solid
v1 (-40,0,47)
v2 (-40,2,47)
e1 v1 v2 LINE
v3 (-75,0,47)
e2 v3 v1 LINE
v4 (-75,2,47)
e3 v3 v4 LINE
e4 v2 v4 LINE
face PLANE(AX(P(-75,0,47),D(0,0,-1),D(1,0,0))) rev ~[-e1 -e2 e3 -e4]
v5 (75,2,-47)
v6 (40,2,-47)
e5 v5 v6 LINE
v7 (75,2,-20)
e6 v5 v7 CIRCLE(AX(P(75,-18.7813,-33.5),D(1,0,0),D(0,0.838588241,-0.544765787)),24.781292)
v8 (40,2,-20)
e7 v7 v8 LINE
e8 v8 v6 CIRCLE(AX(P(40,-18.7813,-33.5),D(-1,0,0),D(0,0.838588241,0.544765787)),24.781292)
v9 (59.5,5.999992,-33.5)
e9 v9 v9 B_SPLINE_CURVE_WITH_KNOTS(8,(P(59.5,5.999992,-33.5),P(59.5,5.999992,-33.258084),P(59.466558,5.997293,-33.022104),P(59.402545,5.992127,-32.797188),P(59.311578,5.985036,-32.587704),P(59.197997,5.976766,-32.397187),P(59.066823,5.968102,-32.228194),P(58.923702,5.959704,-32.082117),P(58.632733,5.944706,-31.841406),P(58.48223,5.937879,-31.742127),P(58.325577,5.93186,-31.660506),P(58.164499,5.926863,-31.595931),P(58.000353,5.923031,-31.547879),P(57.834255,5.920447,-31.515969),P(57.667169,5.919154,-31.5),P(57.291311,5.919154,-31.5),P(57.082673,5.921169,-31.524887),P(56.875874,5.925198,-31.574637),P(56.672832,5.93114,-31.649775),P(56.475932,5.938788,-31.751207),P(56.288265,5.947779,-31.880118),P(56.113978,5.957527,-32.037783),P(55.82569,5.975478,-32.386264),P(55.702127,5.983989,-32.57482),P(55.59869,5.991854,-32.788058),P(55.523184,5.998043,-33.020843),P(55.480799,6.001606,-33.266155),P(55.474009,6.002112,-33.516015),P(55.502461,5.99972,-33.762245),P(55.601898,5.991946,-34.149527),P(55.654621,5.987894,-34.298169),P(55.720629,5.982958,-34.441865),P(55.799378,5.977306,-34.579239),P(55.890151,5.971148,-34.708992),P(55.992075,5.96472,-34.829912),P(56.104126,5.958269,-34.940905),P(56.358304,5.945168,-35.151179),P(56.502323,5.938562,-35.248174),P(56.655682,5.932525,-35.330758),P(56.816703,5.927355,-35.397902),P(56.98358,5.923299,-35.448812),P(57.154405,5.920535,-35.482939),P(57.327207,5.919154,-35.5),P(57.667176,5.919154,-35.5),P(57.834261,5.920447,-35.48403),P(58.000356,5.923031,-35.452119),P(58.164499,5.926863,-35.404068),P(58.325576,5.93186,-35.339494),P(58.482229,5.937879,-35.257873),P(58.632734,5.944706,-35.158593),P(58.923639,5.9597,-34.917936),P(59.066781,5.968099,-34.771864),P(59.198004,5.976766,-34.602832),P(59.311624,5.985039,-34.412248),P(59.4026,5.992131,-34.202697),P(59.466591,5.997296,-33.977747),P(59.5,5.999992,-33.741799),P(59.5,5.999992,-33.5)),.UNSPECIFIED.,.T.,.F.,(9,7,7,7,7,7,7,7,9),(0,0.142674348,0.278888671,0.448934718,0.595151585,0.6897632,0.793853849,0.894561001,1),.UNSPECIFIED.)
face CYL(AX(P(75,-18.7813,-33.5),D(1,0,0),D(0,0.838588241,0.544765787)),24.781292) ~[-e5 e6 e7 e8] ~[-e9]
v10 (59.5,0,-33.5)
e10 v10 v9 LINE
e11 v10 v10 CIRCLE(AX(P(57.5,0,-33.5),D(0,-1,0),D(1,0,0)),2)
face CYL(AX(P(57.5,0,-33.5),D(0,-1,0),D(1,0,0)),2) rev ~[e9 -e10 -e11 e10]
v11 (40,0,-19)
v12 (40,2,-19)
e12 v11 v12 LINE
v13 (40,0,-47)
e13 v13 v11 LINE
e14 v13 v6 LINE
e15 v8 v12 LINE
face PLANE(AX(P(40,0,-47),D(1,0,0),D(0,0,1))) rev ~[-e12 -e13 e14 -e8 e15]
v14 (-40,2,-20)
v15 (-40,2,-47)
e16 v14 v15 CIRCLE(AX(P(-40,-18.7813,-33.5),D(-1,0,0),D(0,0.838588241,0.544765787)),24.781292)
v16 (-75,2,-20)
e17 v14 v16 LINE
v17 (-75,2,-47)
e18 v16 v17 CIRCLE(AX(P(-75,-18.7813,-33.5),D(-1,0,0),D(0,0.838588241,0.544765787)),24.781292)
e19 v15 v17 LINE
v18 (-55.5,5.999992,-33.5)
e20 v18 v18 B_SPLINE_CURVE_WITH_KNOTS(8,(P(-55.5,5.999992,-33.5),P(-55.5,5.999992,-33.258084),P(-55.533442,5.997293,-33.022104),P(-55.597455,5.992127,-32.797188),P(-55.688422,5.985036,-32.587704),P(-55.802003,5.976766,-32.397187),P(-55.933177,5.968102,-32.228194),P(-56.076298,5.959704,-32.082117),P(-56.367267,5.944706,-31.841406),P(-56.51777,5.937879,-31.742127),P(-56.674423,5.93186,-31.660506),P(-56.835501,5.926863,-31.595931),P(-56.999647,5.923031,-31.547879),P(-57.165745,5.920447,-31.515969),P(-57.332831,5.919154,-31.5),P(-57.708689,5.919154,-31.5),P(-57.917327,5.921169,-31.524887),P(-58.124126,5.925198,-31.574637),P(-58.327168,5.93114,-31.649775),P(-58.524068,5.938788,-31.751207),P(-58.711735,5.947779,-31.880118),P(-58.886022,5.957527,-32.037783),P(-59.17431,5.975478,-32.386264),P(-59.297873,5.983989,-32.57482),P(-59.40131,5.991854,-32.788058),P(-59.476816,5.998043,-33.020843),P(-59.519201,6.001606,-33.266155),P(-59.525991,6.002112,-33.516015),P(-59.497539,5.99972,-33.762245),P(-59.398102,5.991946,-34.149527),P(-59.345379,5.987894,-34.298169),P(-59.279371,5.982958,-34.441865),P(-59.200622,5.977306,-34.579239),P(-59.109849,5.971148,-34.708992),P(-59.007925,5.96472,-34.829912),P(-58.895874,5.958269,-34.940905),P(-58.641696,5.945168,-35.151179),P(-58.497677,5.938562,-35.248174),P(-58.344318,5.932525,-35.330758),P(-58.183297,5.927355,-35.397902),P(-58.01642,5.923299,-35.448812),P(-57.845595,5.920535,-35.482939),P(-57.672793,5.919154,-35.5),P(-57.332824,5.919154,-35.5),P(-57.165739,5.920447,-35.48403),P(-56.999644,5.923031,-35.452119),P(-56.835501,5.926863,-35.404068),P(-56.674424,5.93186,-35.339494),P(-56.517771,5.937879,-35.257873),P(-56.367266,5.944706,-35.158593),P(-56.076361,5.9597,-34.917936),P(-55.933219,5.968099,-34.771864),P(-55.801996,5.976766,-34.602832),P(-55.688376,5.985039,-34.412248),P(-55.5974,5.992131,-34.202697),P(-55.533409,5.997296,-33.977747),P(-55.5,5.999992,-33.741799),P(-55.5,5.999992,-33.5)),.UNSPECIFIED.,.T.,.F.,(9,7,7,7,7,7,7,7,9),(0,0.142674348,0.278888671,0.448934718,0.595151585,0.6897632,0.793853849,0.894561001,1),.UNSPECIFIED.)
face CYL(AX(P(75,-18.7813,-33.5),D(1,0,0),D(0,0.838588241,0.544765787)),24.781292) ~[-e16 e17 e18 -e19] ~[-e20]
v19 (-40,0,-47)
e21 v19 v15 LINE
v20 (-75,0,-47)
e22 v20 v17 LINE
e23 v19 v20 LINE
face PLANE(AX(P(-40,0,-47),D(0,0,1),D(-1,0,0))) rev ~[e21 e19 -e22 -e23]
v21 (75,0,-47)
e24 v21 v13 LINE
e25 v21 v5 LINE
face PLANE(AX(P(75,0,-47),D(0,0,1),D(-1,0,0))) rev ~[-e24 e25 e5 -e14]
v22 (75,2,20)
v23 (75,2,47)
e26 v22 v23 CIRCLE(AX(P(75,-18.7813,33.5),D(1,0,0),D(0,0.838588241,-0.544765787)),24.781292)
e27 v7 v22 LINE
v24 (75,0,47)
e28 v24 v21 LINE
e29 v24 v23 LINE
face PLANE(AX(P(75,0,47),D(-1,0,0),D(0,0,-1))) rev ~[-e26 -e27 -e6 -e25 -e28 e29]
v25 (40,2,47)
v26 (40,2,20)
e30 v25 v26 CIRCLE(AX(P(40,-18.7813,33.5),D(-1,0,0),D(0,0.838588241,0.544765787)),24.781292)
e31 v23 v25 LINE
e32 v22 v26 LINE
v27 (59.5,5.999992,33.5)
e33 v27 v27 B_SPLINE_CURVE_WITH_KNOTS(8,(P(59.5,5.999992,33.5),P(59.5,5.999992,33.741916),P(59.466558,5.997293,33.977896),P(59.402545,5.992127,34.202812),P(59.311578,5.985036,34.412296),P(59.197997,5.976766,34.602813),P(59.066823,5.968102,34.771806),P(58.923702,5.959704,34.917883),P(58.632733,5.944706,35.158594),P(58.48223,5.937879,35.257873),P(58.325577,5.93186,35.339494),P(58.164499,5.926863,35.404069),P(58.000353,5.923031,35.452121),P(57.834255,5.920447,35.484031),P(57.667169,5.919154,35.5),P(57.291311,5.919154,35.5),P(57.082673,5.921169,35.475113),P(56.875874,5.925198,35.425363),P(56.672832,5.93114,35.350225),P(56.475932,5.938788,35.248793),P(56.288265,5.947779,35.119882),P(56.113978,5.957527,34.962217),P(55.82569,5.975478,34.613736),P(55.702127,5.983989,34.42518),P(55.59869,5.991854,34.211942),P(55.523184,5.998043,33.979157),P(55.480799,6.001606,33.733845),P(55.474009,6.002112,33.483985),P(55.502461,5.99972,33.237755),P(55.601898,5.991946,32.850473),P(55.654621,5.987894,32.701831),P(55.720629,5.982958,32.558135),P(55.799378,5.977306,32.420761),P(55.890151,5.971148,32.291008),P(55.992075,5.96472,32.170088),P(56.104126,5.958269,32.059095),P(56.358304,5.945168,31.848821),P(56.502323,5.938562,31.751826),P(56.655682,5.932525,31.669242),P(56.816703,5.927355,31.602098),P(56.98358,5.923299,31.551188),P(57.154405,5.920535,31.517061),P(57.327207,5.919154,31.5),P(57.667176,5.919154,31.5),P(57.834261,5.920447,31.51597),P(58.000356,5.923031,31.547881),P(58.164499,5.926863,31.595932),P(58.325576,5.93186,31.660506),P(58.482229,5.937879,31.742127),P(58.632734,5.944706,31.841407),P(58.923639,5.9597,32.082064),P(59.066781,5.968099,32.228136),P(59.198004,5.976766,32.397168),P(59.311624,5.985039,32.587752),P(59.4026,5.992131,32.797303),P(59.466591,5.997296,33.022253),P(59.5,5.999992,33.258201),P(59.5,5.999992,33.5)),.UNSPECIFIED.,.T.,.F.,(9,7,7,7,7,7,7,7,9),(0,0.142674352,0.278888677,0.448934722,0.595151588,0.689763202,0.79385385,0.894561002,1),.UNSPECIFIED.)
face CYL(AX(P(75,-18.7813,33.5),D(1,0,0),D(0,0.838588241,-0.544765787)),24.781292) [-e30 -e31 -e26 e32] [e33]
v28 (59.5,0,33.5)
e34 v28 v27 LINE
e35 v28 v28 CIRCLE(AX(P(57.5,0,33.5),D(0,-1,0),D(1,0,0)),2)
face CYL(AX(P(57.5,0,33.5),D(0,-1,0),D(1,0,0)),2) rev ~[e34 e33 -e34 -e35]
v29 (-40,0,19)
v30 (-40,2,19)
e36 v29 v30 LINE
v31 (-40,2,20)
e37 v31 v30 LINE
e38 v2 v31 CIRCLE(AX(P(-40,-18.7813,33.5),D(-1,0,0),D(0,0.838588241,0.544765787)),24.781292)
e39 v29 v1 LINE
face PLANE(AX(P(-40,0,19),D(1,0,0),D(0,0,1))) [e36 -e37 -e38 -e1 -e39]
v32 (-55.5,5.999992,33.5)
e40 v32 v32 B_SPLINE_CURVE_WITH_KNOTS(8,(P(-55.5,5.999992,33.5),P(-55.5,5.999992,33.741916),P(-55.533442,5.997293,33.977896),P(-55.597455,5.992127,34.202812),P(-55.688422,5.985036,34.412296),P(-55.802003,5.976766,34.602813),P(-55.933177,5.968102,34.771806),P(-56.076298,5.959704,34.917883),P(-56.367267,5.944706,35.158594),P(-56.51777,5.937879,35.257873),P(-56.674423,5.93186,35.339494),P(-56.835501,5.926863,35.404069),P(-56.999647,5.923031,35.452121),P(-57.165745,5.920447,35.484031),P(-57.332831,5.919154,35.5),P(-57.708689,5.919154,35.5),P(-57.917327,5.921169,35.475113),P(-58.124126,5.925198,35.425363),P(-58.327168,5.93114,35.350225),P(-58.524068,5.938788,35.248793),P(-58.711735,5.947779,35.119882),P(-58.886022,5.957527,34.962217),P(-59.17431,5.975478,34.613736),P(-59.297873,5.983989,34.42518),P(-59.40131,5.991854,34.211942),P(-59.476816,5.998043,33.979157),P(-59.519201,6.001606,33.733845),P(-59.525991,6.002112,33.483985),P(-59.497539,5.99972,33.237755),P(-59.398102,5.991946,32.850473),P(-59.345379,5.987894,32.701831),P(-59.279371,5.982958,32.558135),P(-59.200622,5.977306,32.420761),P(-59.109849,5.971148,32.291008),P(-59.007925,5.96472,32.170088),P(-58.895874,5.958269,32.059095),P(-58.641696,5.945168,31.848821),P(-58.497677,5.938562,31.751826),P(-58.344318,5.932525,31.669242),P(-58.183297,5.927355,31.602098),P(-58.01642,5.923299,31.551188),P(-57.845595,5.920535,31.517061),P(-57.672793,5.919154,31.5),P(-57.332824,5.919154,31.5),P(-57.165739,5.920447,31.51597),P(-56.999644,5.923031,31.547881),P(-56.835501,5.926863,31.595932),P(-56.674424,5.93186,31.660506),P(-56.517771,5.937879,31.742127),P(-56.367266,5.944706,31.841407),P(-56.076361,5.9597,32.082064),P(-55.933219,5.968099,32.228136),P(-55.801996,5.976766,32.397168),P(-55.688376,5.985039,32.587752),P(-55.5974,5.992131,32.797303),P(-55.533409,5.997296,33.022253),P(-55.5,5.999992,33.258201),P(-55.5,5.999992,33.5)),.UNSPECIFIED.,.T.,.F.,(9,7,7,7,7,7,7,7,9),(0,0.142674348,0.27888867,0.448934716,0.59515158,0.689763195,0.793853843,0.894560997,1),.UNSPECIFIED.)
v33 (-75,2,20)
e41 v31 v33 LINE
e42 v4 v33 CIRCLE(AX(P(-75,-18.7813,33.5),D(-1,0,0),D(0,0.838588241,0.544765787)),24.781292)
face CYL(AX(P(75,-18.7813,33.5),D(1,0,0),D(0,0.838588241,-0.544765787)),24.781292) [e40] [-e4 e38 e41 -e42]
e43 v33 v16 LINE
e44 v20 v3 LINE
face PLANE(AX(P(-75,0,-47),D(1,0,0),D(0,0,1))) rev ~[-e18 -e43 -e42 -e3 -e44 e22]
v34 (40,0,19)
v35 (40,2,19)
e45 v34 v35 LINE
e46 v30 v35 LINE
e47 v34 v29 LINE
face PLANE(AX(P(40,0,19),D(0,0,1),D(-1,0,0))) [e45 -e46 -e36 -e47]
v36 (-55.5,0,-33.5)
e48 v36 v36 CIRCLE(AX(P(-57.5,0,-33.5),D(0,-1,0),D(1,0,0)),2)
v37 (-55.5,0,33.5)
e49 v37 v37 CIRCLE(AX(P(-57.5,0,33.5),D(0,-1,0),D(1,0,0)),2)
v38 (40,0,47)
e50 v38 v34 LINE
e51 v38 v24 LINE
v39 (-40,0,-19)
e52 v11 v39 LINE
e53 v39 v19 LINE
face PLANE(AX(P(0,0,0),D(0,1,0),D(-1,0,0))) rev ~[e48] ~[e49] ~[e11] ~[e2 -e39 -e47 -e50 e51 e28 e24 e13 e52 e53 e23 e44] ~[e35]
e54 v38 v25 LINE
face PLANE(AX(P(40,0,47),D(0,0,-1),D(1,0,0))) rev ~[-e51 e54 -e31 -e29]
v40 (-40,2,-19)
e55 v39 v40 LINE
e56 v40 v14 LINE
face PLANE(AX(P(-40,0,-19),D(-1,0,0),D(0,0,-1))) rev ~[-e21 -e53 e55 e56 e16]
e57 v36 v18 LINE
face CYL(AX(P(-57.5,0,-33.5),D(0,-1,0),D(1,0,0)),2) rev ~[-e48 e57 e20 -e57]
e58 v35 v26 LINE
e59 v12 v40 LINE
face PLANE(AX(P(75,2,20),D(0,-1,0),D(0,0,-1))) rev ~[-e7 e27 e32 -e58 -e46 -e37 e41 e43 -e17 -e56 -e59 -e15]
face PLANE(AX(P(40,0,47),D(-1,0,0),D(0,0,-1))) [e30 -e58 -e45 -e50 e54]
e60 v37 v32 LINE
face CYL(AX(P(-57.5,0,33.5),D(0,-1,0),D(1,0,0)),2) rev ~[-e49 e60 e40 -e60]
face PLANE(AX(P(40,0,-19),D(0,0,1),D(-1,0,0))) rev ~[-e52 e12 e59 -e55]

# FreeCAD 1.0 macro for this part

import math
import FreeCAD as App
import Part
import Sketcher
Q = App.Units.Quantity

doc = App.newDocument("Part")
body = doc.addObject("PartDesign::Body", "Body")

# Sketch on XZ plane
sketch1 = body.newObject("Sketcher::SketchObject", "Sketch")
sketch1.AttachmentSupport = (doc.getObject("XZ_Plane"), [""])
sketch1.MapMode = "FlatFace"
sketch1.addGeometry([
    Part.LineSegment(App.Vector(-40, -47, 0), App.Vector(-75, -47, 0)),  # 0
    Part.LineSegment(App.Vector(-75, -47, 0), App.Vector(-75, 47, 0)),  # 1
    Part.LineSegment(App.Vector(-75, 47, 0), App.Vector(-40, 47, 0)),  # 2
    Part.LineSegment(App.Vector(-40, 47, 0), App.Vector(-40, 19, 0)),  # 3
    Part.LineSegment(App.Vector(-40, 19, 0), App.Vector(40, 19, 0)),  # 4
    Part.LineSegment(App.Vector(40, 19, 0), App.Vector(40, 47, 0)),  # 5
    Part.LineSegment(App.Vector(40, 47, 0), App.Vector(75, 47, 0)),  # 6
    Part.LineSegment(App.Vector(75, 47, 0), App.Vector(75, -47, 0)),  # 7
    Part.LineSegment(App.Vector(75, -47, 0), App.Vector(40, -47, 0)),  # 8
    Part.LineSegment(App.Vector(40, -47, 0), App.Vector(40, -19, 0)),  # 9
    Part.LineSegment(App.Vector(40, -19, 0), App.Vector(-40, -19, 0)),  # 10
    Part.LineSegment(App.Vector(-40, -19, 0), App.Vector(-40, -47, 0)),  # 11
], False)
sketch1.addConstraint([
    Sketcher.Constraint("Coincident", 0, 2, 1, 1),
    Sketcher.Constraint("Coincident", 1, 2, 2, 1),
    Sketcher.Constraint("Coincident", 2, 2, 3, 1),
    Sketcher.Constraint("Coincident", 3, 2, 4, 1),
    Sketcher.Constraint("Coincident", 4, 2, 5, 1),
    Sketcher.Constraint("Coincident", 5, 2, 6, 1),
    Sketcher.Constraint("Coincident", 6, 2, 7, 1),
    Sketcher.Constraint("Coincident", 7, 2, 8, 1),
    Sketcher.Constraint("Coincident", 8, 2, 9, 1),
    Sketcher.Constraint("Coincident", 9, 2, 10, 1),
    Sketcher.Constraint("Coincident", 10, 2, 11, 1),
    Sketcher.Constraint("Coincident", 11, 2, 0, 1),
    Sketcher.Constraint("Horizontal", 0),
    Sketcher.Constraint("Vertical", 1),
    Sketcher.Constraint("Horizontal", 2),
    Sketcher.Constraint("Vertical", 3),
    Sketcher.Constraint("Horizontal", 4),
    Sketcher.Constraint("Vertical", 5),
    Sketcher.Constraint("Horizontal", 6),
    Sketcher.Constraint("Vertical", 7),
    Sketcher.Constraint("Horizontal", 8),
    Sketcher.Constraint("Vertical", 9),
    Sketcher.Constraint("Horizontal", 10),
    Sketcher.Constraint("Vertical", 11),
    Sketcher.Constraint("Symmetric", 0, 2, 6, 2, -1, 1),
    Sketcher.Constraint("Symmetric", 2, 2, 8, 2, -1, 1),
    Sketcher.Constraint("Symmetric", 4, 2, 10, 2, -1, 1),
    Sketcher.Constraint("Symmetric", 2, 2, 5, 2, -2),
    Sketcher.Constraint("DistanceX", 0, 2, 0, 1, Q("35 mm")),
    Sketcher.Constraint("DistanceX", 4, 1, 4, 2, Q("80 mm")),
    Sketcher.Constraint("DistanceY", 1, 1, 1, 2, Q("94 mm")),
    Sketcher.Constraint("DistanceY", 3, 2, 3, 1, Q("28 mm")),
])
pad1 = body.newObject("PartDesign::Pad", "Pad")
pad1.Profile = sketch1
pad1.Length = 6
pad1.Reversed = True

# Sketch on XZ plane
sketch2 = body.newObject("Sketcher::SketchObject", "Sketch001")
sketch2.AttachmentSupport = (doc.getObject("XZ_Plane"), [""])
sketch2.MapMode = "FlatFace"
sketch2.AttachmentOffset = App.Placement(App.Vector(0, 0, -6), App.Rotation())
sketch2.addGeometry([
    Part.LineSegment(App.Vector(75, -19, 0), App.Vector(-75, -19, 0)),
    Part.LineSegment(App.Vector(-75, -19, 0), App.Vector(-75, 19, 0)),
    Part.LineSegment(App.Vector(-75, 19, 0), App.Vector(75, 19, 0)),
    Part.LineSegment(App.Vector(75, 19, 0), App.Vector(75, -19, 0)),
], False)
sketch2.addConstraint([
    Sketcher.Constraint("Coincident", 0, 2, 1, 1),
    Sketcher.Constraint("Coincident", 1, 2, 2, 1),
    Sketcher.Constraint("Coincident", 2, 2, 3, 1),
    Sketcher.Constraint("Coincident", 3, 2, 0, 1),
    Sketcher.Constraint("Horizontal", 0),
    Sketcher.Constraint("Vertical", 1),
    Sketcher.Constraint("Horizontal", 2),
    Sketcher.Constraint("Vertical", 3),
    Sketcher.Constraint("Symmetric", 0, 2, 2, 2, -1, 1),
    Sketcher.Constraint("DistanceX", 0, 2, 0, 1, Q("150 mm")),
    Sketcher.Constraint("DistanceY", 1, 1, 1, 2, Q("38 mm")),
])
pocket1 = body.newObject("PartDesign::Pocket", "Pocket")
pocket1.Profile = sketch2
pocket1.Length = 4
pocket1.Reversed = True

# Sketch on YZ plane
sketch3 = body.newObject("Sketcher::SketchObject", "Sketch002")
sketch3.AttachmentSupport = (doc.getObject("YZ_Plane"), [""])
sketch3.MapMode = "FlatFace"
sketch3.AttachmentOffset = App.Placement(App.Vector(0, 0, 75), App.Rotation())
sketch3.addGeometry([
    Part.LineSegment(App.Vector(6, 19, 0), App.Vector(5.999997, 33.5, 0)),  # 0
    Part.ArcOfCircle(Part.Circle(App.Vector(-18.7813, 33.5, 0), App.Vector(0, 0, 1), 24.781292), math.radians(-33.00866), math.radians(0)),  # 1
    Part.LineSegment(App.Vector(2, 20, 0), App.Vector(2, 19, 0)),  # 2
    Part.LineSegment(App.Vector(2, 19, 0), App.Vector(6, 19, 0)),  # 3
    Part.ArcOfCircle(Part.Circle(App.Vector(-18.7813, 33.5, 0), App.Vector(0, 0, 1), 24.781292), math.radians(0), math.radians(33.00866)),  # 4
    Part.LineSegment(App.Vector(6, 33.5, 0), App.Vector(6, 47, 0)),  # 5
    Part.LineSegment(App.Vector(6, 47, 0), App.Vector(2, 47, 0)),  # 6
], False)
sketch3.addConstraint([
    Sketcher.Constraint("Tangent", 0, 2, 1, 2),
    Sketcher.Constraint("Coincident", 1, 1, 2, 1),
    Sketcher.Constraint("Coincident", 2, 2, 3, 1),
    Sketcher.Constraint("Coincident", 3, 2, 0, 1),
    Sketcher.Constraint("Tangent", 4, 1, 5, 1),
    Sketcher.Constraint("Coincident", 5, 2, 6, 1),
    Sketcher.Constraint("Coincident", 6, 2, 4, 2),
    Sketcher.Constraint("Vertical", 0),
    Sketcher.Constraint("Vertical", 2),
    Sketcher.Constraint("Horizontal", 3),
    Sketcher.Constraint("Vertical", 5),
    Sketcher.Constraint("Horizontal", 6),
    Sketcher.Constraint("Coincident", 4, 3, 1, 3),
    Sketcher.Constraint("Equal", 1, 4),
    Sketcher.Constraint("Vertical", 2, 2, 6, 2),
    Sketcher.Constraint("DistanceY", 5, 1, 5, 2, Q("13.5 mm")),
    Sketcher.Constraint("DistanceX", -1, 1, 1, 1, Q("2 mm")),
    Sketcher.Constraint("DistanceX", 3, 1, 3, 2, Q("4 mm")),
    Sketcher.Constraint("DistanceY", 2, 2, 2, 1, Q("1 mm")),
    Sketcher.Constraint("DistanceY", -1, 1, 1, 1, Q("20 mm")),
])
pocket2 = body.newObject("PartDesign::Pocket", "Pocket001")
pocket2.Profile = sketch3
pocket2.Type = "ThroughAll"
doc.recompute()

mirrored = body.newObject("PartDesign::Mirrored", "Mirrored")
mirrored.Originals = [pocket2]
mirrored.MirrorPlane = (doc.getObject("XY_Plane"), [""])
body.Tip = mirrored

# Sketch on XZ plane
sketch4 = body.newObject("Sketcher::SketchObject", "Sketch003")
sketch4.AttachmentSupport = (doc.getObject("XZ_Plane"), [""])
sketch4.MapMode = "FlatFace"
sketch4.addGeometry([
    Part.Circle(App.Vector(57.5, 33.5, 0), App.Vector(0, 0, 1), 2),
    Part.Circle(App.Vector(57.5, -33.5, 0), App.Vector(0, 0, 1), 2),
    Part.Circle(App.Vector(-57.5, 33.5, 0), App.Vector(0, 0, 1), 2),
    Part.Circle(App.Vector(-57.5, -33.5, 0), App.Vector(0, 0, 1), 2),
], False)
sketch4.addConstraint([
    Sketcher.Constraint("Equal", 0, 1),
    Sketcher.Constraint("Equal", 1, 2),
    Sketcher.Constraint("Equal", 2, 3),
    Sketcher.Constraint("Symmetric", 1, 3, 2, 3, -1, 1),
    Sketcher.Constraint("Symmetric", 0, 3, 3, 3, -1, 1),
    Sketcher.Constraint("Symmetric", 0, 3, 2, 3, -2),
    Sketcher.Constraint("Diameter", 0, Q("4 mm")),
    Sketcher.Constraint("DistanceY", 1, 3, 0, 3, Q("67 mm")),
    Sketcher.Constraint("DistanceX", 2, 3, 0, 3, Q("115 mm")),
])
pocket3 = body.newObject("PartDesign::Pocket", "Pocket002")
pocket3.Profile = sketch4
pocket3.Type = "ThroughAll"

doc.recompute()
